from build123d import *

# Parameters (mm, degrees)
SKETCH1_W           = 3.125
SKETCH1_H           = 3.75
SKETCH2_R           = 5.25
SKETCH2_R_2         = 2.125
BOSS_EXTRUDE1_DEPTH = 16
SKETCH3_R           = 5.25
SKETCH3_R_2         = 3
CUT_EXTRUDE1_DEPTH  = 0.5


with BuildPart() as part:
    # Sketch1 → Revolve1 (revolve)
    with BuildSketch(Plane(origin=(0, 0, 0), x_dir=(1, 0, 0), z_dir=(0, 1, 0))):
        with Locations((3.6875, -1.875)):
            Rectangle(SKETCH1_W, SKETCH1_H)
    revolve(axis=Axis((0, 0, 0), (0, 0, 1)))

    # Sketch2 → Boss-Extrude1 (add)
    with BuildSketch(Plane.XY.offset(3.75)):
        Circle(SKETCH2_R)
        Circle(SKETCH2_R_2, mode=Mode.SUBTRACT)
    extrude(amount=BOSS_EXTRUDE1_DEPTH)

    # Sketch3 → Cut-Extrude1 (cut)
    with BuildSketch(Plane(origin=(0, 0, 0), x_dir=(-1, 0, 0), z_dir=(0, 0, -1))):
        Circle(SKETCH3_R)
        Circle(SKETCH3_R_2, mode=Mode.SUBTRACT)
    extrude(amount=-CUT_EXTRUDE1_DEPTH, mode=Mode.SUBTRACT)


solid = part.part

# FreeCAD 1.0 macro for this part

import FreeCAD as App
import Part
import Sketcher
from FreeCAD import Vector
Q = App.Units.Quantity


def add_polygon(sketch, points):
    """Adds a closed chain of lines whose ends are joined by coincident constraints."""
    first, n = sketch.GeometryCount, len(points)
    for a, b in zip(points, points[1:] + points[:1]):
        sketch.addGeometry(Part.LineSegment(App.Vector(*a, 0), App.Vector(*b, 0)), False)
    for i in range(n):
        sketch.addConstraint(Sketcher.Constraint("Coincident", first + i, 2, first + (i + 1) % n, 1))

doc = App.newDocument("Part")
body = doc.addObject("PartDesign::Body", "Body")

# Sketch on XZ plane
sketch1 = body.newObject("Sketcher::SketchObject", "Sketch")
sketch1.AttachmentSupport = (doc.getObject("XZ_Plane"), [""])
sketch1.MapMode = "FlatFace"
add_polygon(sketch1, [(2.1, 0), (2.1, 3.8), (5.2, 3.8), (5.2, 0)])  # lines 0-3
sketch1.addConstraint([
    Sketcher.Constraint("Vertical", 0),
    Sketcher.Constraint("Horizontal", 1),
    Sketcher.Constraint("Vertical", 2),
    Sketcher.Constraint("Horizontal", 3),
    Sketcher.Constraint("PointOnObject", 2, 2, -1),
    Sketcher.Constraint("DistanceY", 0, 1, 0, 2, Q("3.75 mm")),
    Sketcher.Constraint("DistanceX", 1, 1, 1, 2, Q("3.125 mm")),
    Sketcher.Constraint("DistanceX", -1, 1, 1, 2, Q("5.25 mm")),
])
revolution = body.newObject("PartDesign::Revolution", "Revolution")
revolution.Profile = sketch1
revolution.ReferenceAxis = (sketch1, ["V_Axis"])
revolution.Angle = 360

# Sketch on XY plane
sketch2 = body.newObject("Sketcher::SketchObject", "Sketch001")
sketch2.AttachmentSupport = (doc.getObject("XY_Plane"), [""])
sketch2.MapMode = "FlatFace"
sketch2.AttachmentOffset = App.Placement(Vector(0, 0, 3.75), App.Rotation())
sketch2.addGeometry([
    Part.Circle(Vector(0, 0, 0), Vector(0, 0, 1), 5.2),
    Part.Circle(Vector(0, 0, 0), Vector(0, 0, 1), 2.1),
], False)
sketch2.addConstraint([
    Sketcher.Constraint("Coincident", 0, 3, -1, 1),
    Sketcher.Constraint("Coincident", 1, 3, -1, 1),
    Sketcher.Constraint("Diameter", 0, Q("10.5 mm")),
    Sketcher.Constraint("Diameter", 1, Q("4.25 mm")),
])
pad1 = body.newObject("PartDesign::Pad", "Pad")
pad1.Profile = sketch2
pad1.Length = 16

# Sketch on XY plane
sketch3 = body.newObject("Sketcher::SketchObject", "Sketch002")
sketch3.AttachmentSupport = (doc.getObject("XY_Plane"), [""])
sketch3.MapMode = "FlatFace"
sketch3.addGeometry([
    Part.Circle(Vector(0, 0, 0), Vector(0, 0, 1), 5.2),
    Part.Circle(Vector(0, 0, 0), Vector(0, 0, 1), 3),
], False)
sketch3.addConstraint([
    Sketcher.Constraint("Coincident", 0, 3, -1, 1),
    Sketcher.Constraint("Coincident", 1, 3, -1, 1),
    Sketcher.Constraint("Diameter", 1, Q("6 mm")),
    Sketcher.Constraint("Diameter", 0, Q("10.5 mm")),
])
pocket1 = body.newObject("PartDesign::Pocket", "Pocket")
pocket1.Profile = sketch3
pocket1.Length = 0.5
pocket1.Reversed = True

doc.recompute()
